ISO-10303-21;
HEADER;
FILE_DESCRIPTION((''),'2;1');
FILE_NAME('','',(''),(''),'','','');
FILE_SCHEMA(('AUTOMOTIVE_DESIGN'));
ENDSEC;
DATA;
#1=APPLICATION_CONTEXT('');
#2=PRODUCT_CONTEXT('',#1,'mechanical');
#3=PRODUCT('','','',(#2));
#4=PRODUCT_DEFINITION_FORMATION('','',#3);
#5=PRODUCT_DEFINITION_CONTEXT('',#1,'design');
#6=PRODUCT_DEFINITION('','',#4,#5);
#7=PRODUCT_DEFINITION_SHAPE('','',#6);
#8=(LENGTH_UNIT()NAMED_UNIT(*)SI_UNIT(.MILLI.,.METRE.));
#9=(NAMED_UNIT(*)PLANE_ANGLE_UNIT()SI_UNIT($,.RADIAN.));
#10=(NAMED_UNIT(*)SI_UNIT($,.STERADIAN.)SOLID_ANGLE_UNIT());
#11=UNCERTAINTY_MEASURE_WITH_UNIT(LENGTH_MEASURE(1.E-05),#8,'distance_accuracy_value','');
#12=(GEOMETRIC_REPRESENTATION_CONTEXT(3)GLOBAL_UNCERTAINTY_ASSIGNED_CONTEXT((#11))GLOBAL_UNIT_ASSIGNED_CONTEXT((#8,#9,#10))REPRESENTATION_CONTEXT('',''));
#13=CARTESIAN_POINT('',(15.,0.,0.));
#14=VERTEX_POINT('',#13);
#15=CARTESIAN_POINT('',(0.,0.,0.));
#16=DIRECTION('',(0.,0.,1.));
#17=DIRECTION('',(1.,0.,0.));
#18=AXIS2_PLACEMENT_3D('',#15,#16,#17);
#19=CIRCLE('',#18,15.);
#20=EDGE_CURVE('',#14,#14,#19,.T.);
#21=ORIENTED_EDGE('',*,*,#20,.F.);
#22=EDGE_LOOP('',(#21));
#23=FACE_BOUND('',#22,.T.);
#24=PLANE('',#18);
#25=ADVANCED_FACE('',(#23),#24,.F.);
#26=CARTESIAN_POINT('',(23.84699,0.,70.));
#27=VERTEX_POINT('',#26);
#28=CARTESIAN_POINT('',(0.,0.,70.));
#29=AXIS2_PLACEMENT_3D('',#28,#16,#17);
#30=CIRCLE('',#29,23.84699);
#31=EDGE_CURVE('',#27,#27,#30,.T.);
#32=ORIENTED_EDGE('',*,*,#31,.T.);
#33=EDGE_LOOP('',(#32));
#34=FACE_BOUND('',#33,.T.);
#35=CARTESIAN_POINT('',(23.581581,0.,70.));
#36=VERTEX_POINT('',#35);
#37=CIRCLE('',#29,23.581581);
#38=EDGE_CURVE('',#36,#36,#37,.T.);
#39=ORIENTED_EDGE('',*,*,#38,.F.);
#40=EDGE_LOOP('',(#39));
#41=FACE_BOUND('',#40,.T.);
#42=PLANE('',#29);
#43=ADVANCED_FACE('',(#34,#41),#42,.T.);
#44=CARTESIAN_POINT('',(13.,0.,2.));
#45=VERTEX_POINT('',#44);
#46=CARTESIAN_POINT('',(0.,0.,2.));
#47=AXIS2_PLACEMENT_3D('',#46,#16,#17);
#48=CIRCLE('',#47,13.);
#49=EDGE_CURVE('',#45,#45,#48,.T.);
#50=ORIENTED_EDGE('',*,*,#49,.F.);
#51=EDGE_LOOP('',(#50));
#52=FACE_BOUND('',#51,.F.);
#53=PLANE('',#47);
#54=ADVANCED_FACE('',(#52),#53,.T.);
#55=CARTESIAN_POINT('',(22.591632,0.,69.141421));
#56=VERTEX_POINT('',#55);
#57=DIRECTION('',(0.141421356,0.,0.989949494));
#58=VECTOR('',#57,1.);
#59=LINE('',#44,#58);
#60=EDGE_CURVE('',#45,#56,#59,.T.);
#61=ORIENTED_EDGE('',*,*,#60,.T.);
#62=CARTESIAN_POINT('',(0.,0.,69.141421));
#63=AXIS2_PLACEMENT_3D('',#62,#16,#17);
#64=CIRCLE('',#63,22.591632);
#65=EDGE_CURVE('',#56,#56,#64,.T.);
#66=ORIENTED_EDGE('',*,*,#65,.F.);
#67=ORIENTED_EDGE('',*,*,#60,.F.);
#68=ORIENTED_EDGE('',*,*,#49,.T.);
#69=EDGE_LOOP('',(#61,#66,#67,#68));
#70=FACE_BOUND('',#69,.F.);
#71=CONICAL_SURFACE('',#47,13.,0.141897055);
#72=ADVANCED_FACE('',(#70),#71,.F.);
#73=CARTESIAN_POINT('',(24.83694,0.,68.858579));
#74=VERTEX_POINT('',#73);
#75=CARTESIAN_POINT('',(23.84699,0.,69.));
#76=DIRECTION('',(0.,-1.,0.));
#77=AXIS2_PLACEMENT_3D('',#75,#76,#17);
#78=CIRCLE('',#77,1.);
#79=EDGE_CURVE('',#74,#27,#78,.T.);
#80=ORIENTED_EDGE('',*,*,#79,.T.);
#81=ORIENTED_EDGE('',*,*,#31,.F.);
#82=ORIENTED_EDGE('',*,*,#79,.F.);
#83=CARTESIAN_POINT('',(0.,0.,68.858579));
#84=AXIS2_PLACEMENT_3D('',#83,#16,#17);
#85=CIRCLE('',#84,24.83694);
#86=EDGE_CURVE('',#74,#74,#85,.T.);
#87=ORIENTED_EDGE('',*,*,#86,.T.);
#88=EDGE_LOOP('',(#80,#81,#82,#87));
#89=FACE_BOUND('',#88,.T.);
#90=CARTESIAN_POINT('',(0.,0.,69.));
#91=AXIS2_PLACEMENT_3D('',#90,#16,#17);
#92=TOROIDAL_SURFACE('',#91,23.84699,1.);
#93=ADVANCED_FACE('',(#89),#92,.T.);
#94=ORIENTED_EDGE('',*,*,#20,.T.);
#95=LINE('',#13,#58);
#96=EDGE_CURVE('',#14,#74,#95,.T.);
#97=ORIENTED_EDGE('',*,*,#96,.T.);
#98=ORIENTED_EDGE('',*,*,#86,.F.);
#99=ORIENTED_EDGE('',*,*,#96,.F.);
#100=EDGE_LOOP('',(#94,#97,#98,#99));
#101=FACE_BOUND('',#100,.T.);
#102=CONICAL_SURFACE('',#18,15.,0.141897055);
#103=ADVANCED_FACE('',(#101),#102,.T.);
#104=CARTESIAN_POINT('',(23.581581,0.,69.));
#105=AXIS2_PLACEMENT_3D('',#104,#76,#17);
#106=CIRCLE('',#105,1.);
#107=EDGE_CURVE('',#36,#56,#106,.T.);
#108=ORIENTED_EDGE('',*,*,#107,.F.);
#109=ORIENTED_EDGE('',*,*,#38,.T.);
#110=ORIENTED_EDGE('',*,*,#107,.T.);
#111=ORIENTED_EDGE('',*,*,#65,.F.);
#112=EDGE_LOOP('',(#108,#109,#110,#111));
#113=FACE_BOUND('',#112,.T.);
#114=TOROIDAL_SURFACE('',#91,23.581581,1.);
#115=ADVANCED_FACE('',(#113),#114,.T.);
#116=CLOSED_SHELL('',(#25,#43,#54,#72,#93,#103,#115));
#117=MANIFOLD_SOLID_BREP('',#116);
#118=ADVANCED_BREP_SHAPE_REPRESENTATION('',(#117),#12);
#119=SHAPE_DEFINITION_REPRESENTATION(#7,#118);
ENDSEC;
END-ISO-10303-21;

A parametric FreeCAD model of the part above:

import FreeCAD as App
import Part
import Sketcher
Q = App.Units.Quantity


def edges_at(feature, points):
    """Names of the edges that pass closest to the given points."""
    edges = feature.Shape.Edges
    near = lambda p: min(range(len(edges)), key=lambda i: edges[i].distToShape(Part.Vertex(*p))[0])
    return sorted({f"Edge{near(p) + 1}" for p in points})

doc = App.newDocument("Part")
body = doc.addObject("PartDesign::Body", "Body")

sketch1 = body.newObject("Sketcher::SketchObject", "Sketch")
sketch1.AttachmentSupport = (doc.getObject("XZ_Plane"), [""])
sketch1.MapMode = "FlatFace"
sketch1.addGeometry(Part.LineSegment(App.Vector(0, 2, 0), App.Vector(13, 2, 0)), False)
sketch1.addGeometry(Part.LineSegment(App.Vector(13, 2, 0), App.Vector(23, 72, 0)), False)
sketch1.addGeometry(Part.LineSegment(App.Vector(23, 72, 0), App.Vector(0, 72, 0)), False)
sketch1.addGeometry(Part.LineSegment(App.Vector(0, 72, 0), App.Vector(0, 2, 0)), False)
sketch1.addConstraint(Sketcher.Constraint("Coincident", 0, 2, 1, 1))
sketch1.addConstraint(Sketcher.Constraint("Coincident", 1, 2, 2, 1))
sketch1.addConstraint(Sketcher.Constraint("Coincident", 2, 2, 3, 1))
sketch1.addConstraint(Sketcher.Constraint("Coincident", 3, 2, 0, 1))
sketch1.addConstraint(Sketcher.Constraint("Horizontal", 0))
sketch1.addConstraint(Sketcher.Constraint("Horizontal", 2))
sketch1.addConstraint(Sketcher.Constraint("Vertical", 3))
sketch1.addConstraint(Sketcher.Constraint("PointOnObject", 2, 2, -2))
sketch1.addConstraint(Sketcher.Constraint("DistanceX", 0, 1, 0, 2, Q("13 mm")))
sketch1.addConstraint(Sketcher.Constraint("DistanceX", 2, 2, 2, 1, Q("23 mm")))
sketch1.addConstraint(Sketcher.Constraint("DistanceY", 3, 2, 3, 1, Q("70 mm")))
sketch1.addConstraint(Sketcher.Constraint("DistanceY", -1, 1, 0, 2, Q("2 mm")))
revolution = body.newObject("PartDesign::Revolution", "Revolution")
revolution.Profile = sketch1
revolution.ReferenceAxis = (sketch1, ["V_Axis"])
revolution.Angle = 360
body2 = doc.addObject("PartDesign::Body", "Body001")

sketch2 = body2.newObject("Sketcher::SketchObject", "Sketch001")
sketch2.AttachmentSupport = (doc.getObject("XZ_Plane001"), [""])
sketch2.MapMode = "FlatFace"
sketch2.addGeometry(Part.LineSegment(App.Vector(0, 0, 0), App.Vector(15, 0, 0)), False)
sketch2.addGeometry(Part.LineSegment(App.Vector(15, 0, 0), App.Vector(25, 70, 0)), False)
sketch2.addGeometry(Part.LineSegment(App.Vector(25, 70, 0), App.Vector(0, 70, 0)), False)
sketch2.addGeometry(Part.LineSegment(App.Vector(0, 70, 0), App.Vector(0, 0, 0)), False)
sketch2.addConstraint(Sketcher.Constraint("Coincident", 0, 2, 1, 1))
sketch2.addConstraint(Sketcher.Constraint("Coincident", 1, 2, 2, 1))
sketch2.addConstraint(Sketcher.Constraint("Coincident", 2, 2, 3, 1))
sketch2.addConstraint(Sketcher.Constraint("Coincident", 3, 2, 0, 1))
sketch2.addConstraint(Sketcher.Constraint("Horizontal", 0))
sketch2.addConstraint(Sketcher.Constraint("Horizontal", 2))
sketch2.addConstraint(Sketcher.Constraint("Vertical", 3))
sketch2.addConstraint(Sketcher.Constraint("Coincident", 3, 2, -1, 1))
sketch2.addConstraint(Sketcher.Constraint("DistanceX", 0, 1, 0, 2, Q("15 mm")))
sketch2.addConstraint(Sketcher.Constraint("DistanceX", 2, 2, 2, 1, Q("25 mm")))
sketch2.addConstraint(Sketcher.Constraint("DistanceY", 3, 2, 3, 1, Q("70 mm")))
revolution2 = body2.newObject("PartDesign::Revolution", "Revolution001")
revolution2.Profile = sketch2
revolution2.ReferenceAxis = (sketch2, ["V_Axis"])
revolution2.Angle = 360
doc.recompute()

boolean = body2.newObject("PartDesign::Boolean", "Boolean")
boolean.Type = "Cut"
boolean.addObjects([body])
doc.recompute()

fillet = body2.newObject("PartDesign::Fillet", "Fillet")
fillet.Base = (boolean, edges_at(boolean, [(-25, 0, 70), (-22.714, 0, 70)]))
fillet.Radius = 1

doc.recompute()
